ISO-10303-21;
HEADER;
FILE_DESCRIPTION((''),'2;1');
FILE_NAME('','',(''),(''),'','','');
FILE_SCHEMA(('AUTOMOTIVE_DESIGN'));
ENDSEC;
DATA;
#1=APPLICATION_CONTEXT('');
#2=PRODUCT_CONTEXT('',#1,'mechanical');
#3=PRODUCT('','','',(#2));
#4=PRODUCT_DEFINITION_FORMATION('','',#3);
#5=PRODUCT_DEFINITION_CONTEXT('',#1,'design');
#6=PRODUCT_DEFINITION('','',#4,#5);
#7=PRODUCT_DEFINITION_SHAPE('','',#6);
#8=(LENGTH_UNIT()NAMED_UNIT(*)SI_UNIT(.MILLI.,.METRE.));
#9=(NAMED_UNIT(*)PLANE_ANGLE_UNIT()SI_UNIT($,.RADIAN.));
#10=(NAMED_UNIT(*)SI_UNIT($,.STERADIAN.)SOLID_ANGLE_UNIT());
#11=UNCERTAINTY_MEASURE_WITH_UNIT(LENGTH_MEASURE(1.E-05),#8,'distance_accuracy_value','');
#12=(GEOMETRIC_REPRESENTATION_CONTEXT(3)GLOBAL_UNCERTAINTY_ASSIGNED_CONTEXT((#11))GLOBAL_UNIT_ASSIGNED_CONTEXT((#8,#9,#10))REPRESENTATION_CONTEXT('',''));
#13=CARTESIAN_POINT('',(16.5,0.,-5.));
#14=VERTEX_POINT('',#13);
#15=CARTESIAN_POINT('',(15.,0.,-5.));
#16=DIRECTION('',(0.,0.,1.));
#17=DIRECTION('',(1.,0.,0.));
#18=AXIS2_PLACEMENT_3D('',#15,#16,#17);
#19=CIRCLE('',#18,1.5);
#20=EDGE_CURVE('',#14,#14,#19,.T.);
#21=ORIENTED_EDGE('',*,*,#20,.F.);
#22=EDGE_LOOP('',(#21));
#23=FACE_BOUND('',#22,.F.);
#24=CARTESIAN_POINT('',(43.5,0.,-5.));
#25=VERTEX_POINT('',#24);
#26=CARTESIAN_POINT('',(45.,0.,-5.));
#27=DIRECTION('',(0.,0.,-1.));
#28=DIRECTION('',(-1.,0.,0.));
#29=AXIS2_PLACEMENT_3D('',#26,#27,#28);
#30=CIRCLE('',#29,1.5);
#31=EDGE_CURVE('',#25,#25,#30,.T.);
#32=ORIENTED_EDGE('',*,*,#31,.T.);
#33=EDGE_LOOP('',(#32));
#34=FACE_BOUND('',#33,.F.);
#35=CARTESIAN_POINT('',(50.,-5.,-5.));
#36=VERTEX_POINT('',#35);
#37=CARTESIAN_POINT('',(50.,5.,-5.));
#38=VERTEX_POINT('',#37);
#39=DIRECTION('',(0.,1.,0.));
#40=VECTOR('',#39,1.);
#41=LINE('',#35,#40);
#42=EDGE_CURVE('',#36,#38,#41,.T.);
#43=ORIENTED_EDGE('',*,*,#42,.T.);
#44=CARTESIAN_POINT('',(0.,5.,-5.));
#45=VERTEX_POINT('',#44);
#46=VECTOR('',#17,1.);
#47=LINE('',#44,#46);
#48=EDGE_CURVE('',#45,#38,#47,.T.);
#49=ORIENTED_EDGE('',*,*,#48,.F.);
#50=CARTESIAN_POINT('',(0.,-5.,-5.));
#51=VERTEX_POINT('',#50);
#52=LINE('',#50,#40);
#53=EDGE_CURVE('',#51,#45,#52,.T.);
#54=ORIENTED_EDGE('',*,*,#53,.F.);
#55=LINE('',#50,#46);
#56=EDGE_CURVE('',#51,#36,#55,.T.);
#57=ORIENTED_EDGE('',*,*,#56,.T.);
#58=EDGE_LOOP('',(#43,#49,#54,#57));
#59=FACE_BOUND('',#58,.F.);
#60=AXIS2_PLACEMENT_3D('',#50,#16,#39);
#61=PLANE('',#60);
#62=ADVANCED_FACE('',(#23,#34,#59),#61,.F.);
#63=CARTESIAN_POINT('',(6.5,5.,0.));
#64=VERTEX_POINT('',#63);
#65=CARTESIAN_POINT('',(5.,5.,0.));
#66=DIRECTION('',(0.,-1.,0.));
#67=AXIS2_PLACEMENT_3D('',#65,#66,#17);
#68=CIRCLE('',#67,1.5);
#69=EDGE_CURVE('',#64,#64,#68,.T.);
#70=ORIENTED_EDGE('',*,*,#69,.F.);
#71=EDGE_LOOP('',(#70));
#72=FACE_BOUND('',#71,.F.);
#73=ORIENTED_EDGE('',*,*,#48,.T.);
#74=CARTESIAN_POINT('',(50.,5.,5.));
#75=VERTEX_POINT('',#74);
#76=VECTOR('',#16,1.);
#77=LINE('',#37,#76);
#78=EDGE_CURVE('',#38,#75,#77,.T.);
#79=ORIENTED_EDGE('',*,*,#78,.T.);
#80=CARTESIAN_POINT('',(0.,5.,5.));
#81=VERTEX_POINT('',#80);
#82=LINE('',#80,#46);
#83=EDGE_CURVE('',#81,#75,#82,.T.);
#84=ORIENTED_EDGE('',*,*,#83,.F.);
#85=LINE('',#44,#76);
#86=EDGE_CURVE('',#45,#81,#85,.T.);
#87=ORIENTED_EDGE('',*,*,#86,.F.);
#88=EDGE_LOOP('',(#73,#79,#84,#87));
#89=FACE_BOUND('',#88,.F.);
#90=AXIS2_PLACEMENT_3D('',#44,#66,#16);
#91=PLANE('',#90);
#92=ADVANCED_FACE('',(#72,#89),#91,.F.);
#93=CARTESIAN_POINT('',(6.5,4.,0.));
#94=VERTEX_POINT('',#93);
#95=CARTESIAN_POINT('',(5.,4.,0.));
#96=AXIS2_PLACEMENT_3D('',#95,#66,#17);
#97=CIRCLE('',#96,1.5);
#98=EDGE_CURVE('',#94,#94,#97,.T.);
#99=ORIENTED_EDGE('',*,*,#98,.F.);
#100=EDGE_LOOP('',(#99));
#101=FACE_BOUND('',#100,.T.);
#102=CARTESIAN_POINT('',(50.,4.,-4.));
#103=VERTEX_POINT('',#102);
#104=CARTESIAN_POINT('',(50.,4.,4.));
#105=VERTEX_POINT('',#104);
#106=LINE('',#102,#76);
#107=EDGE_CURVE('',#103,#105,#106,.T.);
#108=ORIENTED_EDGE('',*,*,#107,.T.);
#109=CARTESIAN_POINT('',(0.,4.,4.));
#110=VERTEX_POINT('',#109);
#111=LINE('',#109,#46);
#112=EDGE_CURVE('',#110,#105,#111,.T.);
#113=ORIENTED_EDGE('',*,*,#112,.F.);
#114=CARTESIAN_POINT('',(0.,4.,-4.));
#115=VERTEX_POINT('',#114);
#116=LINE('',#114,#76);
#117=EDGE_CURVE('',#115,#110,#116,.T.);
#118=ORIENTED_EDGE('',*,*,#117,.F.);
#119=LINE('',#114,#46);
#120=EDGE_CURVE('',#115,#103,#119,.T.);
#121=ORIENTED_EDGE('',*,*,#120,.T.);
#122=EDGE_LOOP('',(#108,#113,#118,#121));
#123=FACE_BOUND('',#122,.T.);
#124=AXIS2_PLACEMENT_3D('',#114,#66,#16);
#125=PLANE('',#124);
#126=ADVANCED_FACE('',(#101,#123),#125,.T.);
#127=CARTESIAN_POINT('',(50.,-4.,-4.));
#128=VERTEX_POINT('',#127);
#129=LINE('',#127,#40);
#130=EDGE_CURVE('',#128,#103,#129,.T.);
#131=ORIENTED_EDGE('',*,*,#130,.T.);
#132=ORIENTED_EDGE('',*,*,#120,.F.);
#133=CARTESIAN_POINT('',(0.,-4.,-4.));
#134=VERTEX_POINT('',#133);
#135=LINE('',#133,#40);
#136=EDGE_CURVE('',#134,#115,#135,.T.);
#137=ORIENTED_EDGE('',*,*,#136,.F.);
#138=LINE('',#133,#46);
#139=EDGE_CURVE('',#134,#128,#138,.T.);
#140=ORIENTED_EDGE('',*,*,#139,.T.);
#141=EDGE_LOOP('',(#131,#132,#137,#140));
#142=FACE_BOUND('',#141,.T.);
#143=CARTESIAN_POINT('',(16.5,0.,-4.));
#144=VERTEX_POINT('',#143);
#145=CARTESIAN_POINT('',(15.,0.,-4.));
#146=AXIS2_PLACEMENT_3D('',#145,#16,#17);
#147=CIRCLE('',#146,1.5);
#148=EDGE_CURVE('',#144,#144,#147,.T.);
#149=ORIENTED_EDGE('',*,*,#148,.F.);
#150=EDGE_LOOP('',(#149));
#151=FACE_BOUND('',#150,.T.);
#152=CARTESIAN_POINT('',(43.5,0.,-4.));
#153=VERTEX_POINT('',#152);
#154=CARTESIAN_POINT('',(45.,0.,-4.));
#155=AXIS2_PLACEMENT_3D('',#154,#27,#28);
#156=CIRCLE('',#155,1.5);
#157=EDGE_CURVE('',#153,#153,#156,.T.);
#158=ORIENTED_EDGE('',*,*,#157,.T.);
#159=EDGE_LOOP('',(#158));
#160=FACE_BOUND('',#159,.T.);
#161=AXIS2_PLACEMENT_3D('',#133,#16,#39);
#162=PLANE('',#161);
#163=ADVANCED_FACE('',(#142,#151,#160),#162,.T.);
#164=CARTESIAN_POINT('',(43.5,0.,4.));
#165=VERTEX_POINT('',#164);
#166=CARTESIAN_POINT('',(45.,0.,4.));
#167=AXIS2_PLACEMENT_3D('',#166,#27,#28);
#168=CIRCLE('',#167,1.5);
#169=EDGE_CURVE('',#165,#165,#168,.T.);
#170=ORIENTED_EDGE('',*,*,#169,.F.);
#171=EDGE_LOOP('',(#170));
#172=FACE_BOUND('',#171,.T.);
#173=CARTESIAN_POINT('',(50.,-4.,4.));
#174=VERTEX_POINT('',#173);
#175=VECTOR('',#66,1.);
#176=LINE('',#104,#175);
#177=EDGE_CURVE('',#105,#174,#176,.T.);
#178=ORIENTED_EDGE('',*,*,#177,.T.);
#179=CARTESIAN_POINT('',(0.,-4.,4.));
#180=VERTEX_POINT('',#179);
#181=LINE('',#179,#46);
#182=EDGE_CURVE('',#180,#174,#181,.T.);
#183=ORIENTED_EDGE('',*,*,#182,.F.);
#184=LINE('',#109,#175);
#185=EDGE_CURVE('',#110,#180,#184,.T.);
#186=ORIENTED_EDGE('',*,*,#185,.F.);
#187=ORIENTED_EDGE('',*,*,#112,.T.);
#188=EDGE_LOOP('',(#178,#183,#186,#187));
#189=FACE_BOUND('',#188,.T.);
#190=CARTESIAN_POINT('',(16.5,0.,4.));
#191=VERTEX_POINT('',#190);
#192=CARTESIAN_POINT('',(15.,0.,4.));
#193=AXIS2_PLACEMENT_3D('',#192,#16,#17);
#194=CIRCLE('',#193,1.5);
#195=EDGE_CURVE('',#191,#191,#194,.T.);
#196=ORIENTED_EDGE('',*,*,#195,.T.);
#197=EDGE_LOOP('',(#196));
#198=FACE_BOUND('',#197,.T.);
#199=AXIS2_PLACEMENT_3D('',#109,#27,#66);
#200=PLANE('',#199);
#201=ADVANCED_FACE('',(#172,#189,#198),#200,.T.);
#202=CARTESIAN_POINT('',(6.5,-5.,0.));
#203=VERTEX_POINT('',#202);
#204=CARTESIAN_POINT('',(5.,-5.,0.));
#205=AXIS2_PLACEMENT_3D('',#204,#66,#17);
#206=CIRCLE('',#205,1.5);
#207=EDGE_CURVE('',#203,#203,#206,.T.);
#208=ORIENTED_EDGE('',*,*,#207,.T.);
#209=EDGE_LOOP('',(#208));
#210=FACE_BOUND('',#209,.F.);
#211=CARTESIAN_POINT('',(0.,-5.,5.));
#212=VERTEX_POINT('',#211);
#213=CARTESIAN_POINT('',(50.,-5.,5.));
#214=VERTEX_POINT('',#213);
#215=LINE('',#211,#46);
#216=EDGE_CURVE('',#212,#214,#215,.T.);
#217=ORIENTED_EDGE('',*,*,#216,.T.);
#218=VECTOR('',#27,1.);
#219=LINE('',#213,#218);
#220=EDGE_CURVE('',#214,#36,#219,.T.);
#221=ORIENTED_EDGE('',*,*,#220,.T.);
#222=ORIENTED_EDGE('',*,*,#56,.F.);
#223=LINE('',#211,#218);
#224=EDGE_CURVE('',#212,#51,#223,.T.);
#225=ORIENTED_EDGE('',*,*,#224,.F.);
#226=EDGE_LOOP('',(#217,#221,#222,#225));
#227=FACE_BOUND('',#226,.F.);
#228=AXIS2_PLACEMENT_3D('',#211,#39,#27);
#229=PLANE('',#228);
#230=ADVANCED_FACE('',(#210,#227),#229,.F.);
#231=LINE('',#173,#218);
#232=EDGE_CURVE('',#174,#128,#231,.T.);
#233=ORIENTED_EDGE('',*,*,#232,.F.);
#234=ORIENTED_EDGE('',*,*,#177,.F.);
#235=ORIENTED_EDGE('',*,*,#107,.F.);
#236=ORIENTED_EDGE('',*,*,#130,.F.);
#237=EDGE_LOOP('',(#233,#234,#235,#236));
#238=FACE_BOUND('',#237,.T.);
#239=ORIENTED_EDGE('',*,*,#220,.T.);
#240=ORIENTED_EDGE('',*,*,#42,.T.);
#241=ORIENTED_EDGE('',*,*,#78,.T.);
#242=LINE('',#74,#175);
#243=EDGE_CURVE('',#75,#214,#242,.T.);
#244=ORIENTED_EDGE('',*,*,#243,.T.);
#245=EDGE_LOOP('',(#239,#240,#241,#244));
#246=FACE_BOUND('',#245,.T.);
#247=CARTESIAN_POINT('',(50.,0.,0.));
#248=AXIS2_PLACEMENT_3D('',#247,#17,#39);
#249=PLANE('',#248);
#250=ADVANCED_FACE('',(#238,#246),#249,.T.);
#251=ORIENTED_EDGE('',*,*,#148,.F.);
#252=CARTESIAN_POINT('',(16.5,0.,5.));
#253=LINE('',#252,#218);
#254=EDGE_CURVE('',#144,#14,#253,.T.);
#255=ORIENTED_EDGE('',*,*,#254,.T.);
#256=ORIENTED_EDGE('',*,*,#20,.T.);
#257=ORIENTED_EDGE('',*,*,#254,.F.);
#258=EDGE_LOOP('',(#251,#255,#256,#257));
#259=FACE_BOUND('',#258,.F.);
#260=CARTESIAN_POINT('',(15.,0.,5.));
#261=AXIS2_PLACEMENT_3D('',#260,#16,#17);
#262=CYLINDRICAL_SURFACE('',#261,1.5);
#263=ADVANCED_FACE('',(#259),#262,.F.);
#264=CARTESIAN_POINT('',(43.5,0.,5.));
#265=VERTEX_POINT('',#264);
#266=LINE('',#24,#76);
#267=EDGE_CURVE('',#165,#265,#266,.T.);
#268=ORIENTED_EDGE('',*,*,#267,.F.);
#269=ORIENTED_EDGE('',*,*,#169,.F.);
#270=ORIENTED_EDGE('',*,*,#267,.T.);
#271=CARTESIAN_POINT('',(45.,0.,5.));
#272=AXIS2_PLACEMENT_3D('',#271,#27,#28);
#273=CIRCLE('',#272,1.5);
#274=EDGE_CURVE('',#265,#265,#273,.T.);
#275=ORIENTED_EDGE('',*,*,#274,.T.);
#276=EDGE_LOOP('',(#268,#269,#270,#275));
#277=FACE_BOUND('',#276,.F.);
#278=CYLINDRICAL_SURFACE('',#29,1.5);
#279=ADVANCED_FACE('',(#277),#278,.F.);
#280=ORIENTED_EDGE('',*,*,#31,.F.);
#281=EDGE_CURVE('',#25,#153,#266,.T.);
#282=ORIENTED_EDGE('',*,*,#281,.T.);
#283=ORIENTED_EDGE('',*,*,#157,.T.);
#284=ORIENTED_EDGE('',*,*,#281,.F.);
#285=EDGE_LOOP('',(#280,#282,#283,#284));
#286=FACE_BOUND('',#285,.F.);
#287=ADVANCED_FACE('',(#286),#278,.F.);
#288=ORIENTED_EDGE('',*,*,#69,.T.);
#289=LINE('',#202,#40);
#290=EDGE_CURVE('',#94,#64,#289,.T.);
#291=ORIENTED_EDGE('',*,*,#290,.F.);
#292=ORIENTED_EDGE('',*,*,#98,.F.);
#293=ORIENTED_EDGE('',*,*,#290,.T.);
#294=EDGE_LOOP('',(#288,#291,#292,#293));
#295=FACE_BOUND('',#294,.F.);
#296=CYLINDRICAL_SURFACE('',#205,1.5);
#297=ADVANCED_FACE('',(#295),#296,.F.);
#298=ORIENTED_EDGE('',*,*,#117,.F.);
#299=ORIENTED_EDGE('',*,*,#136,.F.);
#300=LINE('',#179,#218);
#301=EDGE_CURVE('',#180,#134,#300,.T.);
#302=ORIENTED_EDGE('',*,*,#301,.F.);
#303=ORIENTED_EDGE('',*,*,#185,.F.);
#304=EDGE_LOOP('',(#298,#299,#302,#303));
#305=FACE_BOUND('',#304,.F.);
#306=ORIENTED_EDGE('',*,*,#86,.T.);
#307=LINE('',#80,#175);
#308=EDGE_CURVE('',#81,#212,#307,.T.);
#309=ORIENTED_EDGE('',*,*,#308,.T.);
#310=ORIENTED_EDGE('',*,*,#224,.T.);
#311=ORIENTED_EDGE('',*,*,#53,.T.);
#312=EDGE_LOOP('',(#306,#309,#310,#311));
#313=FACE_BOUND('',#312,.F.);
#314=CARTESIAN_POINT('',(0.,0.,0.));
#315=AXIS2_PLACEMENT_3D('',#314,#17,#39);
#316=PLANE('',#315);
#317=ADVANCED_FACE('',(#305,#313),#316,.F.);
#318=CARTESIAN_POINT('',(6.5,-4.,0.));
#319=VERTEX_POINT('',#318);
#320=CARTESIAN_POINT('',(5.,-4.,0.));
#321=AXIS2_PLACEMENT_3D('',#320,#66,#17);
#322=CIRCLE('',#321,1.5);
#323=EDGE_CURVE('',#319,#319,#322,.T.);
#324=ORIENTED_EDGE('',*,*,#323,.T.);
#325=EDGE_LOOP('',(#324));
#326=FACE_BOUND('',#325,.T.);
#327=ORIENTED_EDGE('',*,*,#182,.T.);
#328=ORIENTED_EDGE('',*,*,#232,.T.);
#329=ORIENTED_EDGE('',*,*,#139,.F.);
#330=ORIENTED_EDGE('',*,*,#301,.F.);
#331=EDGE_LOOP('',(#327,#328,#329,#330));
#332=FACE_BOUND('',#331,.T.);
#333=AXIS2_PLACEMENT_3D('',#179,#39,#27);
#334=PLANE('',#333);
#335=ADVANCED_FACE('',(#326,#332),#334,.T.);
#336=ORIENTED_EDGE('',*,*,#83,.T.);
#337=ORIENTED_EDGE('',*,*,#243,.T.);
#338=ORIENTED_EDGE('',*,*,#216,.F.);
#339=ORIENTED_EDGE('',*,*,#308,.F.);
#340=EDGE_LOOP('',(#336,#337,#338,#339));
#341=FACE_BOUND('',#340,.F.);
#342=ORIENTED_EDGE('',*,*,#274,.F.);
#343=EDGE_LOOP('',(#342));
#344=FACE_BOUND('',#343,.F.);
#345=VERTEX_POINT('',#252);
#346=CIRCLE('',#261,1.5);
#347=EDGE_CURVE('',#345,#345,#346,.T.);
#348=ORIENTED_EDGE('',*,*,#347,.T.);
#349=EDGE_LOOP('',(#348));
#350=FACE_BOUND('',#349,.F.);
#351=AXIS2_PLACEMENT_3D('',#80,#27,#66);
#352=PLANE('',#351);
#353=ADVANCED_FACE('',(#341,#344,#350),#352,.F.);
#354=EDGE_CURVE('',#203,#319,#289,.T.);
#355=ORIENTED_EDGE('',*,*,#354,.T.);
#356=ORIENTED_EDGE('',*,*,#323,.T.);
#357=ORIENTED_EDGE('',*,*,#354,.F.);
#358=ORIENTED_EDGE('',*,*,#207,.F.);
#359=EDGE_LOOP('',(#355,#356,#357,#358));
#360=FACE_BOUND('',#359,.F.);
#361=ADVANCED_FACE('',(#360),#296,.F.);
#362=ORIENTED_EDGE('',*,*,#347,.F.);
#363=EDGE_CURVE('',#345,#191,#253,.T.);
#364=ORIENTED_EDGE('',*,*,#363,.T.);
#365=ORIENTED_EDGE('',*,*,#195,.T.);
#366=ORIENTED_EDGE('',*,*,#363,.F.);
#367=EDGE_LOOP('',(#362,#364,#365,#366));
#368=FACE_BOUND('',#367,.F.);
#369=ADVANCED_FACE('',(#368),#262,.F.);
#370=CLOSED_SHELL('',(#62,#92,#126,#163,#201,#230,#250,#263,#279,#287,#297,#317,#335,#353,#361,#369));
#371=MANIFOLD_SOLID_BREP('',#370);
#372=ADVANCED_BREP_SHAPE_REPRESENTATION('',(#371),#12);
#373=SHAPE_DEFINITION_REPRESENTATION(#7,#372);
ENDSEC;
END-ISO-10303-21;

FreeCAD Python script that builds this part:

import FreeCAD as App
import Part
import Sketcher
from FreeCAD import Vector


def add_polygon(sketch, points):
    """Adds a closed chain of lines whose ends are joined by coincident constraints."""
    first, n = sketch.GeometryCount, len(points)
    for a, b in zip(points, points[1:] + points[:1]):
        sketch.addGeometry(Part.LineSegment(App.Vector(*a, 0), App.Vector(*b, 0)), False)
    for i in range(n):
        sketch.addConstraint(Sketcher.Constraint("Coincident", first + i, 2, first + (i + 1) % n, 1))

doc = App.newDocument("Part")
body = doc.addObject("PartDesign::Body", "Body")

# Sketch on YZ plane
sketch1 = body.newObject("Sketcher::SketchObject", "Sketch")
sketch1.AttachmentSupport = (doc.getObject("YZ_Plane"), [""])
sketch1.MapMode = "FlatFace"
add_polygon(sketch1, [(5, -5), (5, 5), (-5, 5), (-5, -5)])  # lines 0-3
add_polygon(sketch1, [(-4, 4), (4, 4), (4, -4), (-4, -4)])  # lines 4-7
sketch1.addConstraint(Sketcher.Constraint("Vertical", 0))
sketch1.addConstraint(Sketcher.Constraint("Horizontal", 1))
sketch1.addConstraint(Sketcher.Constraint("Vertical", 2))
sketch1.addConstraint(Sketcher.Constraint("Horizontal", 3))
sketch1.addConstraint(Sketcher.Constraint("Horizontal", 4))
sketch1.addConstraint(Sketcher.Constraint("Vertical", 5))
sketch1.addConstraint(Sketcher.Constraint("Horizontal", 6))
sketch1.addConstraint(Sketcher.Constraint("Vertical", 7))
sketch1.addConstraint(Sketcher.Constraint("Symmetric", 0, 2, 2, 2, -1, 1))
sketch1.addConstraint(Sketcher.Constraint("Symmetric", 4, 2, 6, 2, -1, 1))
sketch1.addConstraint(Sketcher.Constraint("Equal", 3, 0))
sketch1.addConstraint(Sketcher.Constraint("Equal", 6, 5))
sketch1.addConstraint(Sketcher.Constraint("DistanceX", 1, 2, 1, 1, 10.0))
sketch1.addConstraint(Sketcher.Constraint("DistanceX", 4, 2, 0, 2, 1.0))
pad1 = body.newObject("PartDesign::Pad", "Pad")
pad1.Profile = sketch1
pad1.Length = 50

# Sketch on XY plane
sketch2 = body.newObject("Sketcher::SketchObject", "Sketch001")
sketch2.AttachmentSupport = (doc.getObject("XY_Plane"), [""])
sketch2.MapMode = "FlatFace"
sketch2.AttachmentOffset = App.Placement(Vector(0, 0, 5), App.Rotation())
sketch2.addGeometry(Part.Circle(Vector(15, 0, 0), Vector(0, 0, 1), 1.5), False)
sketch2.addConstraint(Sketcher.Constraint("PointOnObject", 0, 3, -1))
sketch2.addConstraint(Sketcher.Constraint("Diameter", 0, 3.0))
sketch2.addConstraint(Sketcher.Constraint("DistanceX", -1, 1, 0, 3, 15.0))
pocket1 = body.newObject("PartDesign::Pocket", "Pocket")
pocket1.Profile = sketch2
pocket1.Length = 50

# Sketch on XZ plane
sketch3 = body.newObject("Sketcher::SketchObject", "Sketch002")
sketch3.AttachmentSupport = (doc.getObject("XZ_Plane"), [""])
sketch3.MapMode = "FlatFace"
sketch3.AttachmentOffset = App.Placement(Vector(0, 0, 5), App.Rotation())
sketch3.addGeometry(Part.Circle(Vector(5, 0, 0), Vector(0, 0, 1), 1.5), False)
sketch3.addConstraint(Sketcher.Constraint("PointOnObject", 0, 3, -1))
sketch3.addConstraint(Sketcher.Constraint("Diameter", 0, 3.0))
sketch3.addConstraint(Sketcher.Constraint("DistanceX", -1, 1, 0, 3, 5.0))
pocket2 = body.newObject("PartDesign::Pocket", "Pocket001")
pocket2.Profile = sketch3
pocket2.Length = 50

# Sketch on XY plane
sketch4 = body.newObject("Sketcher::SketchObject", "Sketch003")
sketch4.AttachmentSupport = (doc.getObject("XY_Plane"), [""])
sketch4.MapMode = "FlatFace"
sketch4.AttachmentOffset = App.Placement(Vector(0, 0, -5), App.Rotation())
sketch4.addGeometry(Part.Circle(Vector(45, 0, 0), Vector(0, 0, 1), 1.5), False)
sketch4.addConstraint(Sketcher.Constraint("PointOnObject", 0, 3, -1))
sketch4.addConstraint(Sketcher.Constraint("Diameter", 0, 3.0))
sketch4.addConstraint(Sketcher.Constraint("DistanceX", -1, 1, 0, 3, 45.0))
pocket3 = body.newObject("PartDesign::Pocket", "Pocket002")
pocket3.Profile = sketch4
pocket3.Length = 50
pocket3.Reversed = True

doc.recompute()
